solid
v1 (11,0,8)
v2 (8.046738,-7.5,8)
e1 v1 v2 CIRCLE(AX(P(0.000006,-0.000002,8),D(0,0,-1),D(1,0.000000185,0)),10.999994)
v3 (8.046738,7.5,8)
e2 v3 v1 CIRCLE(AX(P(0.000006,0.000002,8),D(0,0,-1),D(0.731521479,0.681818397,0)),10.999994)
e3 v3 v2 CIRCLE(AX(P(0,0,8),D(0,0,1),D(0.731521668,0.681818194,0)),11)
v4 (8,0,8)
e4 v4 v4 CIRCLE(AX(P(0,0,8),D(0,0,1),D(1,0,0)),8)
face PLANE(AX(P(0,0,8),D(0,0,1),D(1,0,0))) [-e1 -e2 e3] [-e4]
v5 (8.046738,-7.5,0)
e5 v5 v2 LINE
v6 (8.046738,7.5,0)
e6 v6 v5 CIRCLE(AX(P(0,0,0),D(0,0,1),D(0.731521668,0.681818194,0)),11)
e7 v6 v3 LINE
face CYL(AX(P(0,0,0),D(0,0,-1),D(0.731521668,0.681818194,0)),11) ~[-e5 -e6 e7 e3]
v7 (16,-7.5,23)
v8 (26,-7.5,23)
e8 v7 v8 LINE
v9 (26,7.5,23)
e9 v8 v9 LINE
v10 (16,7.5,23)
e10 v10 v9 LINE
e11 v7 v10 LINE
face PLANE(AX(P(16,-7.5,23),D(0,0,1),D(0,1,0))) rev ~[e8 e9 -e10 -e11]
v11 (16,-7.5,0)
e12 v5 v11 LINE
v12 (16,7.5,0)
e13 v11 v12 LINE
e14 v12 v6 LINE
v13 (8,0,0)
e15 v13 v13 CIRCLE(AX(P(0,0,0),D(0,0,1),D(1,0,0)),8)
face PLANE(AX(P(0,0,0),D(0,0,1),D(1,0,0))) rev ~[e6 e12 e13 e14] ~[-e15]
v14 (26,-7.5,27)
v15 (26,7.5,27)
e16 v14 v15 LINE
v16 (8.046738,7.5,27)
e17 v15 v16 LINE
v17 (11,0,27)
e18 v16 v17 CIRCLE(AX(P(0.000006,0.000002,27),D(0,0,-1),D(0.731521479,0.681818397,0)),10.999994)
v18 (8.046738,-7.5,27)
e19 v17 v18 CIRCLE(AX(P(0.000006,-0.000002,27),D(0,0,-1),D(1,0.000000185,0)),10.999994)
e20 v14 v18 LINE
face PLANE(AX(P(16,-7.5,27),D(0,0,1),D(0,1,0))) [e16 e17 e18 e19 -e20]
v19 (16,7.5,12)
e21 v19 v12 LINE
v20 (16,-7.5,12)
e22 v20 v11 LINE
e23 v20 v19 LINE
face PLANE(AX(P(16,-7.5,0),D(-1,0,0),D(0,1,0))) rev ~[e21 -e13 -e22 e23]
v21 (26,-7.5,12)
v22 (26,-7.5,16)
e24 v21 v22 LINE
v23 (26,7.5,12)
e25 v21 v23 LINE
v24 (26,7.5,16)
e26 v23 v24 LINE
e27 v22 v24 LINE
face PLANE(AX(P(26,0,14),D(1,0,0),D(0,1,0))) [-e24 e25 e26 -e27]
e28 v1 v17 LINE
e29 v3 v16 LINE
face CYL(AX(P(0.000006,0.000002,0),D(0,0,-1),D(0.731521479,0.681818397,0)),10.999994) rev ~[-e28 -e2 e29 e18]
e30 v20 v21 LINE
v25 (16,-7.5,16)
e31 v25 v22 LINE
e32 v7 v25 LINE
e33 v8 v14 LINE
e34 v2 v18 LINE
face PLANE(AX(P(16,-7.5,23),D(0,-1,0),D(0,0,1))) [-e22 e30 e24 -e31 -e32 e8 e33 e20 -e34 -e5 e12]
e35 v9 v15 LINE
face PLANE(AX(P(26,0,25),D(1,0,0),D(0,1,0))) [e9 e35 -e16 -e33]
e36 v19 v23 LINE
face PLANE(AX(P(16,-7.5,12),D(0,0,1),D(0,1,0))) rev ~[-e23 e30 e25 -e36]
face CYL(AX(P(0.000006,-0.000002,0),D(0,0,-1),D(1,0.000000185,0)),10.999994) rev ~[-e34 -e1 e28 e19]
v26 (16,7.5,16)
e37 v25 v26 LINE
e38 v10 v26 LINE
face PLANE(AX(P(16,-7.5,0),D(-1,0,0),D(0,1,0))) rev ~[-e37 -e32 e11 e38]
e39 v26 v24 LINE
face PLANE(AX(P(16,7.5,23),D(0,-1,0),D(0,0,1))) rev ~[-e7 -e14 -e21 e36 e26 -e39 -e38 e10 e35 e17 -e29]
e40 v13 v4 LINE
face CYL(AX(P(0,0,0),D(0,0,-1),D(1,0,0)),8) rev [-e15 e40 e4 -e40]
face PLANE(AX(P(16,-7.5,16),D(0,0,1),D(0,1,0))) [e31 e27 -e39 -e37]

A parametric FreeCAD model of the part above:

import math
import FreeCAD as App
import Part
import Sketcher
Q = App.Units.Quantity


def add_polygon(sketch, points):
    """Adds a closed chain of lines whose ends are joined by coincident constraints."""
    first, n = sketch.GeometryCount, len(points)
    for a, b in zip(points, points[1:] + points[:1]):
        sketch.addGeometry(Part.LineSegment(App.Vector(*a, 0), App.Vector(*b, 0)), False)
    for i in range(n):
        sketch.addConstraint(Sketcher.Constraint("Coincident", first + i, 2, first + (i + 1) % n, 1))

doc = App.newDocument("Part")
body = doc.addObject("PartDesign::Body", "Body")

# Sketch on XY plane
sketch1 = body.newObject("Sketcher::SketchObject", "Sketch")
sketch1.AttachmentSupport = (doc.getObject("XY_Plane"), [""])
sketch1.MapMode = "FlatFace"
sketch1.addGeometry(Part.LineSegment(App.Vector(16, 8, 0), App.Vector(8, 8, 0)), False)
sketch1.addGeometry(Part.ArcOfCircle(Part.Circle(App.Vector(0, 0, 0), App.Vector(0, 0, 1), 11), math.radians(43), math.radians(317)), False)
sketch1.addGeometry(Part.LineSegment(App.Vector(8, -8, 0), App.Vector(16, -8, 0)), False)
sketch1.addGeometry(Part.LineSegment(App.Vector(16, -8, 0), App.Vector(16, 8, 0)), False)
sketch1.addGeometry(Part.Circle(App.Vector(0, 0, 0), App.Vector(0, 0, 1), 8), False)
sketch1.addConstraint(Sketcher.Constraint("Coincident", 0, 2, 1, 1))
sketch1.addConstraint(Sketcher.Constraint("Coincident", 1, 2, 2, 1))
sketch1.addConstraint(Sketcher.Constraint("Coincident", 2, 2, 3, 1))
sketch1.addConstraint(Sketcher.Constraint("Coincident", 3, 2, 0, 1))
sketch1.addConstraint(Sketcher.Constraint("Horizontal", 0))
sketch1.addConstraint(Sketcher.Constraint("Horizontal", 2))
sketch1.addConstraint(Sketcher.Constraint("Vertical", 3))
sketch1.addConstraint(Sketcher.Constraint("Coincident", 1, 3, -1, 1))
sketch1.addConstraint(Sketcher.Constraint("Coincident", 4, 3, -1, 1))
sketch1.addConstraint(Sketcher.Constraint("Vertical", 0, 2, 1, 2))
sketch1.addConstraint(Sketcher.Constraint("Diameter", 4, Q("16 mm")))
sketch1.addConstraint(Sketcher.Constraint("Radius", 1, Q("11 mm")))
sketch1.addConstraint(Sketcher.Constraint("DistanceY", 3, 1, 3, 2, Q("15 mm")))
sketch1.addConstraint(Sketcher.Constraint("DistanceX", -1, 1, 2, 2, Q("16 mm")))
pad1 = body.newObject("PartDesign::Pad", "Pad")
pad1.Profile = sketch1
pad1.Length = 8

# Sketch on XY plane
sketch2 = body.newObject("Sketcher::SketchObject", "Sketch001")
sketch2.AttachmentSupport = (doc.getObject("XY_Plane"), [""])
sketch2.MapMode = "FlatFace"
sketch2.addGeometry(Part.ArcOfCircle(Part.Circle(App.Vector(0, 0, 0), App.Vector(0, 0, 1), 11), math.radians(0), math.radians(43)), False)
sketch2.addGeometry(Part.ArcOfCircle(Part.Circle(App.Vector(0, 0, 0), App.Vector(0, 0, 1), 11), math.radians(-43), math.radians(0)), False)
sketch2.addGeometry(Part.LineSegment(App.Vector(8, -8, 0), App.Vector(16, -8, 0)), False)
sketch2.addGeometry(Part.LineSegment(App.Vector(16, -8, 0), App.Vector(16, 8, 0)), False)
sketch2.addGeometry(Part.LineSegment(App.Vector(16, 8, 0), App.Vector(8, 8, 0)), False)
sketch2.addConstraint(Sketcher.Constraint("Tangent", 0, 1, 1, 2))
sketch2.addConstraint(Sketcher.Constraint("Coincident", 1, 1, 2, 1))
sketch2.addConstraint(Sketcher.Constraint("Coincident", 2, 2, 3, 1))
sketch2.addConstraint(Sketcher.Constraint("Coincident", 3, 2, 4, 1))
sketch2.addConstraint(Sketcher.Constraint("Coincident", 4, 2, 0, 2))
sketch2.addConstraint(Sketcher.Constraint("Horizontal", 2))
sketch2.addConstraint(Sketcher.Constraint("Vertical", 3))
sketch2.addConstraint(Sketcher.Constraint("Horizontal", 4))
sketch2.addConstraint(Sketcher.Constraint("Coincident", 0, 3, -1, 1))
sketch2.addConstraint(Sketcher.Constraint("Equal", 0, 1))
sketch2.addConstraint(Sketcher.Constraint("PointOnObject", 0, 1, -1))
sketch2.addConstraint(Sketcher.Constraint("Vertical", 1, 1, 4, 2))
sketch2.addConstraint(Sketcher.Constraint("DistanceY", 3, 1, 3, 2, Q("15 mm")))
sketch2.addConstraint(Sketcher.Constraint("DistanceX", -1, 1, 0, 1, Q("11 mm")))
sketch2.addConstraint(Sketcher.Constraint("DistanceX", -1, 1, 2, 2, Q("16 mm")))
pad2 = body.newObject("PartDesign::Pad", "Pad001")
pad2.Profile = sketch2
pad2.Length = 27

# Sketch on YZ plane
sketch3 = body.newObject("Sketcher::SketchObject", "Sketch002")
sketch3.AttachmentSupport = (doc.getObject("YZ_Plane"), [""])
sketch3.MapMode = "FlatFace"
sketch3.AttachmentOffset = App.Placement(App.Vector(0, 0, 16), App.Rotation())
add_polygon(sketch3, [(-7.5, 27), (-7.5, 23), (7.5, 23), (7.5, 27)])  # lines 0-3
sketch3.addConstraint(Sketcher.Constraint("Vertical", 0))
sketch3.addConstraint(Sketcher.Constraint("Horizontal", 1))
sketch3.addConstraint(Sketcher.Constraint("Vertical", 2))
sketch3.addConstraint(Sketcher.Constraint("Horizontal", 3))
sketch3.addConstraint(Sketcher.Constraint("DistanceX", 1, 1, 1, 2, Q("15 mm")))
sketch3.addConstraint(Sketcher.Constraint("DistanceY", 0, 2, 0, 1, Q("4 mm")))
sketch3.addConstraint(Sketcher.Constraint("DistanceY", -1, 1, 0, 2, Q("23 mm")))
sketch3.addConstraint(Sketcher.Constraint("DistanceX", 0, 2, -1, 1, Q("7.5 mm")))
pad3 = body.newObject("PartDesign::Pad", "Pad002")
pad3.Profile = sketch3
pad3.Length = 10

# Sketch on YZ plane
sketch4 = body.newObject("Sketcher::SketchObject", "Sketch003")
sketch4.AttachmentSupport = (doc.getObject("YZ_Plane"), [""])
sketch4.MapMode = "FlatFace"
sketch4.AttachmentOffset = App.Placement(App.Vector(0, 0, 16), App.Rotation())
add_polygon(sketch4, [(-7.5, 16), (-7.5, 12), (7.5, 12), (7.5, 16)])  # lines 0-3
sketch4.addConstraint(Sketcher.Constraint("Vertical", 0))
sketch4.addConstraint(Sketcher.Constraint("Horizontal", 1))
sketch4.addConstraint(Sketcher.Constraint("Vertical", 2))
sketch4.addConstraint(Sketcher.Constraint("Horizontal", 3))
sketch4.addConstraint(Sketcher.Constraint("DistanceX", 1, 1, 1, 2, Q("15 mm")))
sketch4.addConstraint(Sketcher.Constraint("DistanceY", 0, 2, 0, 1, Q("4 mm")))
sketch4.addConstraint(Sketcher.Constraint("DistanceY", -1, 1, 0, 2, Q("12 mm")))
sketch4.addConstraint(Sketcher.Constraint("DistanceX", 0, 2, -1, 1, Q("7.5 mm")))
pad4 = body.newObject("PartDesign::Pad", "Pad003")
pad4.Profile = sketch4
pad4.Length = 10

doc.recompute()
